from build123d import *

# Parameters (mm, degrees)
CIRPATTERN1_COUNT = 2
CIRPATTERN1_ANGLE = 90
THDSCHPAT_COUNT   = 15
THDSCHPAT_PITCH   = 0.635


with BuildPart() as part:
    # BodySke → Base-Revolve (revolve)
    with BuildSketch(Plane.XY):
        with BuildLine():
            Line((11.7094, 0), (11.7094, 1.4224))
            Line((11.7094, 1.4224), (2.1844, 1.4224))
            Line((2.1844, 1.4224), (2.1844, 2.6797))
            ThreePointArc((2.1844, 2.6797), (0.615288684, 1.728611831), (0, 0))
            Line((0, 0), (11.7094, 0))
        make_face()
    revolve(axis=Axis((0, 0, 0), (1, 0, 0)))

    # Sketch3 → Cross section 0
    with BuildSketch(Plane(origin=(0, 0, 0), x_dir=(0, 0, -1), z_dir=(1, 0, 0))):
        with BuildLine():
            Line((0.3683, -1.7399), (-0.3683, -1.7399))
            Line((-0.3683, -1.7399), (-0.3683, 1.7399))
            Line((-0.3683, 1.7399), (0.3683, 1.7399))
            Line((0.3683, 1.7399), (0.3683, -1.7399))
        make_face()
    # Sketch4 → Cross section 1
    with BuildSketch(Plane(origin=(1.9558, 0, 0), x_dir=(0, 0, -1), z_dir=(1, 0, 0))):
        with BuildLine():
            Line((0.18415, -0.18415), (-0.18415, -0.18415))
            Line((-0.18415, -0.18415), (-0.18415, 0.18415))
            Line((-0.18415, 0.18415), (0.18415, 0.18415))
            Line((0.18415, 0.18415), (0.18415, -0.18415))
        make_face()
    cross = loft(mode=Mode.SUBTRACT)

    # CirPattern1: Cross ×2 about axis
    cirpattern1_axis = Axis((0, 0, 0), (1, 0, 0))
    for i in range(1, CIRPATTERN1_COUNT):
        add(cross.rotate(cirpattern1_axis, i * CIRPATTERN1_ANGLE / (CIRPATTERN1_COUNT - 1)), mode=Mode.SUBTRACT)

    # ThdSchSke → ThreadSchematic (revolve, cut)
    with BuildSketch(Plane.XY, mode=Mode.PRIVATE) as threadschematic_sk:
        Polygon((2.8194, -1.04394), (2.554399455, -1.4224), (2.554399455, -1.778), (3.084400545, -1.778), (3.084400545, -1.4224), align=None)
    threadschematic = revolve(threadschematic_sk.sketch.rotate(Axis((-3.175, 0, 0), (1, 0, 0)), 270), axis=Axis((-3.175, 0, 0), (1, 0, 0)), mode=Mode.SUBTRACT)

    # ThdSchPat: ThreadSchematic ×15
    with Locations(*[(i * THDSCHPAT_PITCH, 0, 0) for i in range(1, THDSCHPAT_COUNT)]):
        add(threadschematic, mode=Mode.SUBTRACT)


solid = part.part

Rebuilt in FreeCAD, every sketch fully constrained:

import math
import FreeCAD as App
import Part
import Sketcher
Q = App.Units.Quantity

doc = App.newDocument("Part")
body = doc.addObject("PartDesign::Body", "Body")

# Sketch on XY plane
sketch1 = body.newObject("Sketcher::SketchObject", "Sketch")
sketch1.AttachmentSupport = (doc.getObject("XY_Plane"), [""])
sketch1.MapMode = "FlatFace"
sketch1.addGeometry(Part.LineSegment(App.Vector(11.7, 0, 0), App.Vector(11.7, 1.4, 0)), False)
sketch1.addGeometry(Part.LineSegment(App.Vector(11.7, 1.4, 0), App.Vector(2.2, 1.4, 0)), False)
sketch1.addGeometry(Part.LineSegment(App.Vector(2.2, 1.4, 0), App.Vector(2.2, 2.7, 0)), False)
sketch1.addGeometry(Part.ArcOfCircle(Part.Circle(App.Vector(2.7, 0, 0), App.Vector(0, 0, 1), 2.7), math.radians(102), math.radians(180)), False)
sketch1.addGeometry(Part.LineSegment(App.Vector(0, 0, 0), App.Vector(11.7, 0, 0)), False)
sketch1.addConstraint(Sketcher.Constraint("Coincident", 0, 2, 1, 1))
sketch1.addConstraint(Sketcher.Constraint("Coincident", 1, 2, 2, 1))
sketch1.addConstraint(Sketcher.Constraint("Coincident", 2, 2, 3, 1))
sketch1.addConstraint(Sketcher.Constraint("Coincident", 3, 2, 4, 1))
sketch1.addConstraint(Sketcher.Constraint("Coincident", 4, 2, 0, 1))
sketch1.addConstraint(Sketcher.Constraint("Vertical", 0))
sketch1.addConstraint(Sketcher.Constraint("Horizontal", 1))
sketch1.addConstraint(Sketcher.Constraint("Vertical", 2))
sketch1.addConstraint(Sketcher.Constraint("Horizontal", 4))
sketch1.addConstraint(Sketcher.Constraint("Coincident", 3, 2, -1, 1))
sketch1.addConstraint(Sketcher.Constraint("PointOnObject", 3, 3, -1))
sketch1.addConstraint(Sketcher.Constraint("DistanceX", 1, 2, 1, 1, Q("0.375 in")))
sketch1.addConstraint(Sketcher.Constraint("DistanceX", 4, 1, 4, 2, Q("0.461 in")))
sketch1.addConstraint(Sketcher.Constraint("DistanceY", 0, 1, 0, 2, Q("0.056 in")))
sketch1.addConstraint(Sketcher.Constraint("DistanceY", 2, 1, 2, 2, Q("0.0495 in")))
revolution = body.newObject("PartDesign::Revolution", "Revolution")
revolution.Profile = sketch1
revolution.ReferenceAxis = (sketch1, ["H_Axis"])
revolution.Angle = 360

# Sketch on YZ plane
sketch2 = body.newObject("Sketcher::SketchObject", "Sketch001")
sketch2.AttachmentSupport = (doc.getObject("YZ_Plane"), [""])
sketch2.MapMode = "FlatFace"
sketch2.addGeometry(Part.LineSegment(App.Vector(-1.7, 0.4, 0), App.Vector(-1.7, -0.4, 0)), False)
sketch2.addGeometry(Part.LineSegment(App.Vector(-1.7, -0.4, 0), App.Vector(1.7, -0.4, 0)), False)
sketch2.addGeometry(Part.LineSegment(App.Vector(1.7, -0.4, 0), App.Vector(1.7, 0.4, 0)), False)
sketch2.addGeometry(Part.LineSegment(App.Vector(1.7, 0.4, 0), App.Vector(-1.7, 0.4, 0)), False)
sketch2.addConstraint(Sketcher.Constraint("Coincident", 0, 2, 1, 1))
sketch2.addConstraint(Sketcher.Constraint("Coincident", 1, 2, 2, 1))
sketch2.addConstraint(Sketcher.Constraint("Coincident", 2, 2, 3, 1))
sketch2.addConstraint(Sketcher.Constraint("Coincident", 3, 2, 0, 1))
sketch2.addConstraint(Sketcher.Constraint("Vertical", 0))
sketch2.addConstraint(Sketcher.Constraint("Horizontal", 1))
sketch2.addConstraint(Sketcher.Constraint("Vertical", 2))
sketch2.addConstraint(Sketcher.Constraint("Horizontal", 3))
sketch2.addConstraint(Sketcher.Constraint("Symmetric", 0, 2, 2, 2, -1, 1))
sketch2.addConstraint(Sketcher.Constraint("DistanceX", 1, 1, 1, 2, Q("0.137 in")))
sketch2.addConstraint(Sketcher.Constraint("DistanceY", 0, 2, 0, 1, Q("0.029 in")))

# Sketch on YZ plane
sketch3 = body.newObject("Sketcher::SketchObject", "Sketch002")
sketch3.AttachmentSupport = (doc.getObject("YZ_Plane"), [""])
sketch3.MapMode = "FlatFace"
sketch3.AttachmentOffset = App.Placement(App.Vector(0, 0, 0.077 * 25.4), App.Rotation())
sketch3.addGeometry(Part.LineSegment(App.Vector(-0.18, 0.18, 0), App.Vector(-0.18, -0.18, 0)), False)
sketch3.addGeometry(Part.LineSegment(App.Vector(-0.18, -0.18, 0), App.Vector(0.18, -0.18, 0)), False)
sketch3.addGeometry(Part.LineSegment(App.Vector(0.18, -0.18, 0), App.Vector(0.18, 0.18, 0)), False)
sketch3.addGeometry(Part.LineSegment(App.Vector(0.18, 0.18, 0), App.Vector(-0.18, 0.18, 0)), False)
sketch3.addConstraint(Sketcher.Constraint("Coincident", 0, 2, 1, 1))
sketch3.addConstraint(Sketcher.Constraint("Coincident", 1, 2, 2, 1))
sketch3.addConstraint(Sketcher.Constraint("Coincident", 2, 2, 3, 1))
sketch3.addConstraint(Sketcher.Constraint("Coincident", 3, 2, 0, 1))
sketch3.addConstraint(Sketcher.Constraint("Vertical", 0))
sketch3.addConstraint(Sketcher.Constraint("Horizontal", 1))
sketch3.addConstraint(Sketcher.Constraint("Vertical", 2))
sketch3.addConstraint(Sketcher.Constraint("Horizontal", 3))
sketch3.addConstraint(Sketcher.Constraint("Symmetric", 0, 2, 2, 2, -1, 1))
sketch3.addConstraint(Sketcher.Constraint("Equal", 3, 0))
sketch3.addConstraint(Sketcher.Constraint("DistanceX", 1, 1, 1, 2, Q("0.0145 in")))

subtractiveloft = body.newObject("PartDesign::SubtractiveLoft", "SubtractiveLoft")
subtractiveloft.Profile = sketch2
subtractiveloft.Sections = [sketch3]
doc.recompute()

polarpattern = body.newObject("PartDesign::PolarPattern", "PolarPattern")
polarpattern.Originals = [subtractiveloft]
polarpattern.Axis = (doc.getObject("X_Axis"), [""])
polarpattern.Angle = 90
polarpattern.Occurrences = 2
body.Tip = polarpattern

# Sketch on XY plane
sketch4 = body.newObject("Sketcher::SketchObject", "Sketch003")
sketch4.AttachmentSupport = (doc.getObject("XY_Plane"), [""])
sketch4.MapMode = "FlatFace"
sketch4.addGeometry(Part.LineSegment(App.Vector(2.82, -1.04, 0), App.Vector(2.55, -1.42, 0)), False)
sketch4.addGeometry(Part.LineSegment(App.Vector(2.55, -1.42, 0), App.Vector(2.55, -1.78, 0)), False)
sketch4.addGeometry(Part.LineSegment(App.Vector(2.55, -1.78, 0), App.Vector(3.08, -1.78, 0)), False)
sketch4.addGeometry(Part.LineSegment(App.Vector(3.08, -1.78, 0), App.Vector(3.08, -1.42, 0)), False)
sketch4.addGeometry(Part.LineSegment(App.Vector(3.08, -1.42, 0), App.Vector(2.82, -1.04, 0)), False)
sketch4.addConstraint(Sketcher.Constraint("Coincident", 0, 2, 1, 1))
sketch4.addConstraint(Sketcher.Constraint("Coincident", 1, 2, 2, 1))
sketch4.addConstraint(Sketcher.Constraint("Coincident", 2, 2, 3, 1))
sketch4.addConstraint(Sketcher.Constraint("Coincident", 3, 2, 4, 1))
sketch4.addConstraint(Sketcher.Constraint("Coincident", 4, 2, 0, 1))
sketch4.addConstraint(Sketcher.Constraint("Vertical", 1))
sketch4.addConstraint(Sketcher.Constraint("Horizontal", 2))
sketch4.addConstraint(Sketcher.Constraint("Vertical", 3))
sketch4.addConstraint(Sketcher.Constraint("Horizontal", 0, 2, 3, 2))
sketch4.addConstraint(Sketcher.Constraint("Equal", 0, 4))
sketch4.addConstraint(Sketcher.Constraint("Angle", 0, Q("-125 deg")))
sketch4.addConstraint(Sketcher.Constraint("DistanceY", 1, 2, 1, 1, Q("0.014 in")))
sketch4.addConstraint(Sketcher.Constraint("DistanceY", 1, 2, -1, 1, Q("0.07 in")))
sketch4.addConstraint(Sketcher.Constraint("DistanceX", -1, 1, 4, 2, Q("0.111 in")))
sketch4.addConstraint(Sketcher.Constraint("DistanceX", 2, 1, 2, 2, Q("0.530001 mm")))
groove = body.newObject("PartDesign::Groove", "Groove")
groove.Profile = sketch4
groove.ReferenceAxis = (sketch4, ["H_Axis"])
groove.Angle = 360
doc.recompute()

linearpattern = body.newObject("PartDesign::LinearPattern", "LinearPattern")
linearpattern.Originals = [groove]
linearpattern.Direction = (doc.getObject("X_Axis"), [""])
linearpattern.Mode = "offset"
linearpattern.Offset = Q("0.025 in")
linearpattern.Occurrences = 15
body.Tip = linearpattern

doc.recompute()
